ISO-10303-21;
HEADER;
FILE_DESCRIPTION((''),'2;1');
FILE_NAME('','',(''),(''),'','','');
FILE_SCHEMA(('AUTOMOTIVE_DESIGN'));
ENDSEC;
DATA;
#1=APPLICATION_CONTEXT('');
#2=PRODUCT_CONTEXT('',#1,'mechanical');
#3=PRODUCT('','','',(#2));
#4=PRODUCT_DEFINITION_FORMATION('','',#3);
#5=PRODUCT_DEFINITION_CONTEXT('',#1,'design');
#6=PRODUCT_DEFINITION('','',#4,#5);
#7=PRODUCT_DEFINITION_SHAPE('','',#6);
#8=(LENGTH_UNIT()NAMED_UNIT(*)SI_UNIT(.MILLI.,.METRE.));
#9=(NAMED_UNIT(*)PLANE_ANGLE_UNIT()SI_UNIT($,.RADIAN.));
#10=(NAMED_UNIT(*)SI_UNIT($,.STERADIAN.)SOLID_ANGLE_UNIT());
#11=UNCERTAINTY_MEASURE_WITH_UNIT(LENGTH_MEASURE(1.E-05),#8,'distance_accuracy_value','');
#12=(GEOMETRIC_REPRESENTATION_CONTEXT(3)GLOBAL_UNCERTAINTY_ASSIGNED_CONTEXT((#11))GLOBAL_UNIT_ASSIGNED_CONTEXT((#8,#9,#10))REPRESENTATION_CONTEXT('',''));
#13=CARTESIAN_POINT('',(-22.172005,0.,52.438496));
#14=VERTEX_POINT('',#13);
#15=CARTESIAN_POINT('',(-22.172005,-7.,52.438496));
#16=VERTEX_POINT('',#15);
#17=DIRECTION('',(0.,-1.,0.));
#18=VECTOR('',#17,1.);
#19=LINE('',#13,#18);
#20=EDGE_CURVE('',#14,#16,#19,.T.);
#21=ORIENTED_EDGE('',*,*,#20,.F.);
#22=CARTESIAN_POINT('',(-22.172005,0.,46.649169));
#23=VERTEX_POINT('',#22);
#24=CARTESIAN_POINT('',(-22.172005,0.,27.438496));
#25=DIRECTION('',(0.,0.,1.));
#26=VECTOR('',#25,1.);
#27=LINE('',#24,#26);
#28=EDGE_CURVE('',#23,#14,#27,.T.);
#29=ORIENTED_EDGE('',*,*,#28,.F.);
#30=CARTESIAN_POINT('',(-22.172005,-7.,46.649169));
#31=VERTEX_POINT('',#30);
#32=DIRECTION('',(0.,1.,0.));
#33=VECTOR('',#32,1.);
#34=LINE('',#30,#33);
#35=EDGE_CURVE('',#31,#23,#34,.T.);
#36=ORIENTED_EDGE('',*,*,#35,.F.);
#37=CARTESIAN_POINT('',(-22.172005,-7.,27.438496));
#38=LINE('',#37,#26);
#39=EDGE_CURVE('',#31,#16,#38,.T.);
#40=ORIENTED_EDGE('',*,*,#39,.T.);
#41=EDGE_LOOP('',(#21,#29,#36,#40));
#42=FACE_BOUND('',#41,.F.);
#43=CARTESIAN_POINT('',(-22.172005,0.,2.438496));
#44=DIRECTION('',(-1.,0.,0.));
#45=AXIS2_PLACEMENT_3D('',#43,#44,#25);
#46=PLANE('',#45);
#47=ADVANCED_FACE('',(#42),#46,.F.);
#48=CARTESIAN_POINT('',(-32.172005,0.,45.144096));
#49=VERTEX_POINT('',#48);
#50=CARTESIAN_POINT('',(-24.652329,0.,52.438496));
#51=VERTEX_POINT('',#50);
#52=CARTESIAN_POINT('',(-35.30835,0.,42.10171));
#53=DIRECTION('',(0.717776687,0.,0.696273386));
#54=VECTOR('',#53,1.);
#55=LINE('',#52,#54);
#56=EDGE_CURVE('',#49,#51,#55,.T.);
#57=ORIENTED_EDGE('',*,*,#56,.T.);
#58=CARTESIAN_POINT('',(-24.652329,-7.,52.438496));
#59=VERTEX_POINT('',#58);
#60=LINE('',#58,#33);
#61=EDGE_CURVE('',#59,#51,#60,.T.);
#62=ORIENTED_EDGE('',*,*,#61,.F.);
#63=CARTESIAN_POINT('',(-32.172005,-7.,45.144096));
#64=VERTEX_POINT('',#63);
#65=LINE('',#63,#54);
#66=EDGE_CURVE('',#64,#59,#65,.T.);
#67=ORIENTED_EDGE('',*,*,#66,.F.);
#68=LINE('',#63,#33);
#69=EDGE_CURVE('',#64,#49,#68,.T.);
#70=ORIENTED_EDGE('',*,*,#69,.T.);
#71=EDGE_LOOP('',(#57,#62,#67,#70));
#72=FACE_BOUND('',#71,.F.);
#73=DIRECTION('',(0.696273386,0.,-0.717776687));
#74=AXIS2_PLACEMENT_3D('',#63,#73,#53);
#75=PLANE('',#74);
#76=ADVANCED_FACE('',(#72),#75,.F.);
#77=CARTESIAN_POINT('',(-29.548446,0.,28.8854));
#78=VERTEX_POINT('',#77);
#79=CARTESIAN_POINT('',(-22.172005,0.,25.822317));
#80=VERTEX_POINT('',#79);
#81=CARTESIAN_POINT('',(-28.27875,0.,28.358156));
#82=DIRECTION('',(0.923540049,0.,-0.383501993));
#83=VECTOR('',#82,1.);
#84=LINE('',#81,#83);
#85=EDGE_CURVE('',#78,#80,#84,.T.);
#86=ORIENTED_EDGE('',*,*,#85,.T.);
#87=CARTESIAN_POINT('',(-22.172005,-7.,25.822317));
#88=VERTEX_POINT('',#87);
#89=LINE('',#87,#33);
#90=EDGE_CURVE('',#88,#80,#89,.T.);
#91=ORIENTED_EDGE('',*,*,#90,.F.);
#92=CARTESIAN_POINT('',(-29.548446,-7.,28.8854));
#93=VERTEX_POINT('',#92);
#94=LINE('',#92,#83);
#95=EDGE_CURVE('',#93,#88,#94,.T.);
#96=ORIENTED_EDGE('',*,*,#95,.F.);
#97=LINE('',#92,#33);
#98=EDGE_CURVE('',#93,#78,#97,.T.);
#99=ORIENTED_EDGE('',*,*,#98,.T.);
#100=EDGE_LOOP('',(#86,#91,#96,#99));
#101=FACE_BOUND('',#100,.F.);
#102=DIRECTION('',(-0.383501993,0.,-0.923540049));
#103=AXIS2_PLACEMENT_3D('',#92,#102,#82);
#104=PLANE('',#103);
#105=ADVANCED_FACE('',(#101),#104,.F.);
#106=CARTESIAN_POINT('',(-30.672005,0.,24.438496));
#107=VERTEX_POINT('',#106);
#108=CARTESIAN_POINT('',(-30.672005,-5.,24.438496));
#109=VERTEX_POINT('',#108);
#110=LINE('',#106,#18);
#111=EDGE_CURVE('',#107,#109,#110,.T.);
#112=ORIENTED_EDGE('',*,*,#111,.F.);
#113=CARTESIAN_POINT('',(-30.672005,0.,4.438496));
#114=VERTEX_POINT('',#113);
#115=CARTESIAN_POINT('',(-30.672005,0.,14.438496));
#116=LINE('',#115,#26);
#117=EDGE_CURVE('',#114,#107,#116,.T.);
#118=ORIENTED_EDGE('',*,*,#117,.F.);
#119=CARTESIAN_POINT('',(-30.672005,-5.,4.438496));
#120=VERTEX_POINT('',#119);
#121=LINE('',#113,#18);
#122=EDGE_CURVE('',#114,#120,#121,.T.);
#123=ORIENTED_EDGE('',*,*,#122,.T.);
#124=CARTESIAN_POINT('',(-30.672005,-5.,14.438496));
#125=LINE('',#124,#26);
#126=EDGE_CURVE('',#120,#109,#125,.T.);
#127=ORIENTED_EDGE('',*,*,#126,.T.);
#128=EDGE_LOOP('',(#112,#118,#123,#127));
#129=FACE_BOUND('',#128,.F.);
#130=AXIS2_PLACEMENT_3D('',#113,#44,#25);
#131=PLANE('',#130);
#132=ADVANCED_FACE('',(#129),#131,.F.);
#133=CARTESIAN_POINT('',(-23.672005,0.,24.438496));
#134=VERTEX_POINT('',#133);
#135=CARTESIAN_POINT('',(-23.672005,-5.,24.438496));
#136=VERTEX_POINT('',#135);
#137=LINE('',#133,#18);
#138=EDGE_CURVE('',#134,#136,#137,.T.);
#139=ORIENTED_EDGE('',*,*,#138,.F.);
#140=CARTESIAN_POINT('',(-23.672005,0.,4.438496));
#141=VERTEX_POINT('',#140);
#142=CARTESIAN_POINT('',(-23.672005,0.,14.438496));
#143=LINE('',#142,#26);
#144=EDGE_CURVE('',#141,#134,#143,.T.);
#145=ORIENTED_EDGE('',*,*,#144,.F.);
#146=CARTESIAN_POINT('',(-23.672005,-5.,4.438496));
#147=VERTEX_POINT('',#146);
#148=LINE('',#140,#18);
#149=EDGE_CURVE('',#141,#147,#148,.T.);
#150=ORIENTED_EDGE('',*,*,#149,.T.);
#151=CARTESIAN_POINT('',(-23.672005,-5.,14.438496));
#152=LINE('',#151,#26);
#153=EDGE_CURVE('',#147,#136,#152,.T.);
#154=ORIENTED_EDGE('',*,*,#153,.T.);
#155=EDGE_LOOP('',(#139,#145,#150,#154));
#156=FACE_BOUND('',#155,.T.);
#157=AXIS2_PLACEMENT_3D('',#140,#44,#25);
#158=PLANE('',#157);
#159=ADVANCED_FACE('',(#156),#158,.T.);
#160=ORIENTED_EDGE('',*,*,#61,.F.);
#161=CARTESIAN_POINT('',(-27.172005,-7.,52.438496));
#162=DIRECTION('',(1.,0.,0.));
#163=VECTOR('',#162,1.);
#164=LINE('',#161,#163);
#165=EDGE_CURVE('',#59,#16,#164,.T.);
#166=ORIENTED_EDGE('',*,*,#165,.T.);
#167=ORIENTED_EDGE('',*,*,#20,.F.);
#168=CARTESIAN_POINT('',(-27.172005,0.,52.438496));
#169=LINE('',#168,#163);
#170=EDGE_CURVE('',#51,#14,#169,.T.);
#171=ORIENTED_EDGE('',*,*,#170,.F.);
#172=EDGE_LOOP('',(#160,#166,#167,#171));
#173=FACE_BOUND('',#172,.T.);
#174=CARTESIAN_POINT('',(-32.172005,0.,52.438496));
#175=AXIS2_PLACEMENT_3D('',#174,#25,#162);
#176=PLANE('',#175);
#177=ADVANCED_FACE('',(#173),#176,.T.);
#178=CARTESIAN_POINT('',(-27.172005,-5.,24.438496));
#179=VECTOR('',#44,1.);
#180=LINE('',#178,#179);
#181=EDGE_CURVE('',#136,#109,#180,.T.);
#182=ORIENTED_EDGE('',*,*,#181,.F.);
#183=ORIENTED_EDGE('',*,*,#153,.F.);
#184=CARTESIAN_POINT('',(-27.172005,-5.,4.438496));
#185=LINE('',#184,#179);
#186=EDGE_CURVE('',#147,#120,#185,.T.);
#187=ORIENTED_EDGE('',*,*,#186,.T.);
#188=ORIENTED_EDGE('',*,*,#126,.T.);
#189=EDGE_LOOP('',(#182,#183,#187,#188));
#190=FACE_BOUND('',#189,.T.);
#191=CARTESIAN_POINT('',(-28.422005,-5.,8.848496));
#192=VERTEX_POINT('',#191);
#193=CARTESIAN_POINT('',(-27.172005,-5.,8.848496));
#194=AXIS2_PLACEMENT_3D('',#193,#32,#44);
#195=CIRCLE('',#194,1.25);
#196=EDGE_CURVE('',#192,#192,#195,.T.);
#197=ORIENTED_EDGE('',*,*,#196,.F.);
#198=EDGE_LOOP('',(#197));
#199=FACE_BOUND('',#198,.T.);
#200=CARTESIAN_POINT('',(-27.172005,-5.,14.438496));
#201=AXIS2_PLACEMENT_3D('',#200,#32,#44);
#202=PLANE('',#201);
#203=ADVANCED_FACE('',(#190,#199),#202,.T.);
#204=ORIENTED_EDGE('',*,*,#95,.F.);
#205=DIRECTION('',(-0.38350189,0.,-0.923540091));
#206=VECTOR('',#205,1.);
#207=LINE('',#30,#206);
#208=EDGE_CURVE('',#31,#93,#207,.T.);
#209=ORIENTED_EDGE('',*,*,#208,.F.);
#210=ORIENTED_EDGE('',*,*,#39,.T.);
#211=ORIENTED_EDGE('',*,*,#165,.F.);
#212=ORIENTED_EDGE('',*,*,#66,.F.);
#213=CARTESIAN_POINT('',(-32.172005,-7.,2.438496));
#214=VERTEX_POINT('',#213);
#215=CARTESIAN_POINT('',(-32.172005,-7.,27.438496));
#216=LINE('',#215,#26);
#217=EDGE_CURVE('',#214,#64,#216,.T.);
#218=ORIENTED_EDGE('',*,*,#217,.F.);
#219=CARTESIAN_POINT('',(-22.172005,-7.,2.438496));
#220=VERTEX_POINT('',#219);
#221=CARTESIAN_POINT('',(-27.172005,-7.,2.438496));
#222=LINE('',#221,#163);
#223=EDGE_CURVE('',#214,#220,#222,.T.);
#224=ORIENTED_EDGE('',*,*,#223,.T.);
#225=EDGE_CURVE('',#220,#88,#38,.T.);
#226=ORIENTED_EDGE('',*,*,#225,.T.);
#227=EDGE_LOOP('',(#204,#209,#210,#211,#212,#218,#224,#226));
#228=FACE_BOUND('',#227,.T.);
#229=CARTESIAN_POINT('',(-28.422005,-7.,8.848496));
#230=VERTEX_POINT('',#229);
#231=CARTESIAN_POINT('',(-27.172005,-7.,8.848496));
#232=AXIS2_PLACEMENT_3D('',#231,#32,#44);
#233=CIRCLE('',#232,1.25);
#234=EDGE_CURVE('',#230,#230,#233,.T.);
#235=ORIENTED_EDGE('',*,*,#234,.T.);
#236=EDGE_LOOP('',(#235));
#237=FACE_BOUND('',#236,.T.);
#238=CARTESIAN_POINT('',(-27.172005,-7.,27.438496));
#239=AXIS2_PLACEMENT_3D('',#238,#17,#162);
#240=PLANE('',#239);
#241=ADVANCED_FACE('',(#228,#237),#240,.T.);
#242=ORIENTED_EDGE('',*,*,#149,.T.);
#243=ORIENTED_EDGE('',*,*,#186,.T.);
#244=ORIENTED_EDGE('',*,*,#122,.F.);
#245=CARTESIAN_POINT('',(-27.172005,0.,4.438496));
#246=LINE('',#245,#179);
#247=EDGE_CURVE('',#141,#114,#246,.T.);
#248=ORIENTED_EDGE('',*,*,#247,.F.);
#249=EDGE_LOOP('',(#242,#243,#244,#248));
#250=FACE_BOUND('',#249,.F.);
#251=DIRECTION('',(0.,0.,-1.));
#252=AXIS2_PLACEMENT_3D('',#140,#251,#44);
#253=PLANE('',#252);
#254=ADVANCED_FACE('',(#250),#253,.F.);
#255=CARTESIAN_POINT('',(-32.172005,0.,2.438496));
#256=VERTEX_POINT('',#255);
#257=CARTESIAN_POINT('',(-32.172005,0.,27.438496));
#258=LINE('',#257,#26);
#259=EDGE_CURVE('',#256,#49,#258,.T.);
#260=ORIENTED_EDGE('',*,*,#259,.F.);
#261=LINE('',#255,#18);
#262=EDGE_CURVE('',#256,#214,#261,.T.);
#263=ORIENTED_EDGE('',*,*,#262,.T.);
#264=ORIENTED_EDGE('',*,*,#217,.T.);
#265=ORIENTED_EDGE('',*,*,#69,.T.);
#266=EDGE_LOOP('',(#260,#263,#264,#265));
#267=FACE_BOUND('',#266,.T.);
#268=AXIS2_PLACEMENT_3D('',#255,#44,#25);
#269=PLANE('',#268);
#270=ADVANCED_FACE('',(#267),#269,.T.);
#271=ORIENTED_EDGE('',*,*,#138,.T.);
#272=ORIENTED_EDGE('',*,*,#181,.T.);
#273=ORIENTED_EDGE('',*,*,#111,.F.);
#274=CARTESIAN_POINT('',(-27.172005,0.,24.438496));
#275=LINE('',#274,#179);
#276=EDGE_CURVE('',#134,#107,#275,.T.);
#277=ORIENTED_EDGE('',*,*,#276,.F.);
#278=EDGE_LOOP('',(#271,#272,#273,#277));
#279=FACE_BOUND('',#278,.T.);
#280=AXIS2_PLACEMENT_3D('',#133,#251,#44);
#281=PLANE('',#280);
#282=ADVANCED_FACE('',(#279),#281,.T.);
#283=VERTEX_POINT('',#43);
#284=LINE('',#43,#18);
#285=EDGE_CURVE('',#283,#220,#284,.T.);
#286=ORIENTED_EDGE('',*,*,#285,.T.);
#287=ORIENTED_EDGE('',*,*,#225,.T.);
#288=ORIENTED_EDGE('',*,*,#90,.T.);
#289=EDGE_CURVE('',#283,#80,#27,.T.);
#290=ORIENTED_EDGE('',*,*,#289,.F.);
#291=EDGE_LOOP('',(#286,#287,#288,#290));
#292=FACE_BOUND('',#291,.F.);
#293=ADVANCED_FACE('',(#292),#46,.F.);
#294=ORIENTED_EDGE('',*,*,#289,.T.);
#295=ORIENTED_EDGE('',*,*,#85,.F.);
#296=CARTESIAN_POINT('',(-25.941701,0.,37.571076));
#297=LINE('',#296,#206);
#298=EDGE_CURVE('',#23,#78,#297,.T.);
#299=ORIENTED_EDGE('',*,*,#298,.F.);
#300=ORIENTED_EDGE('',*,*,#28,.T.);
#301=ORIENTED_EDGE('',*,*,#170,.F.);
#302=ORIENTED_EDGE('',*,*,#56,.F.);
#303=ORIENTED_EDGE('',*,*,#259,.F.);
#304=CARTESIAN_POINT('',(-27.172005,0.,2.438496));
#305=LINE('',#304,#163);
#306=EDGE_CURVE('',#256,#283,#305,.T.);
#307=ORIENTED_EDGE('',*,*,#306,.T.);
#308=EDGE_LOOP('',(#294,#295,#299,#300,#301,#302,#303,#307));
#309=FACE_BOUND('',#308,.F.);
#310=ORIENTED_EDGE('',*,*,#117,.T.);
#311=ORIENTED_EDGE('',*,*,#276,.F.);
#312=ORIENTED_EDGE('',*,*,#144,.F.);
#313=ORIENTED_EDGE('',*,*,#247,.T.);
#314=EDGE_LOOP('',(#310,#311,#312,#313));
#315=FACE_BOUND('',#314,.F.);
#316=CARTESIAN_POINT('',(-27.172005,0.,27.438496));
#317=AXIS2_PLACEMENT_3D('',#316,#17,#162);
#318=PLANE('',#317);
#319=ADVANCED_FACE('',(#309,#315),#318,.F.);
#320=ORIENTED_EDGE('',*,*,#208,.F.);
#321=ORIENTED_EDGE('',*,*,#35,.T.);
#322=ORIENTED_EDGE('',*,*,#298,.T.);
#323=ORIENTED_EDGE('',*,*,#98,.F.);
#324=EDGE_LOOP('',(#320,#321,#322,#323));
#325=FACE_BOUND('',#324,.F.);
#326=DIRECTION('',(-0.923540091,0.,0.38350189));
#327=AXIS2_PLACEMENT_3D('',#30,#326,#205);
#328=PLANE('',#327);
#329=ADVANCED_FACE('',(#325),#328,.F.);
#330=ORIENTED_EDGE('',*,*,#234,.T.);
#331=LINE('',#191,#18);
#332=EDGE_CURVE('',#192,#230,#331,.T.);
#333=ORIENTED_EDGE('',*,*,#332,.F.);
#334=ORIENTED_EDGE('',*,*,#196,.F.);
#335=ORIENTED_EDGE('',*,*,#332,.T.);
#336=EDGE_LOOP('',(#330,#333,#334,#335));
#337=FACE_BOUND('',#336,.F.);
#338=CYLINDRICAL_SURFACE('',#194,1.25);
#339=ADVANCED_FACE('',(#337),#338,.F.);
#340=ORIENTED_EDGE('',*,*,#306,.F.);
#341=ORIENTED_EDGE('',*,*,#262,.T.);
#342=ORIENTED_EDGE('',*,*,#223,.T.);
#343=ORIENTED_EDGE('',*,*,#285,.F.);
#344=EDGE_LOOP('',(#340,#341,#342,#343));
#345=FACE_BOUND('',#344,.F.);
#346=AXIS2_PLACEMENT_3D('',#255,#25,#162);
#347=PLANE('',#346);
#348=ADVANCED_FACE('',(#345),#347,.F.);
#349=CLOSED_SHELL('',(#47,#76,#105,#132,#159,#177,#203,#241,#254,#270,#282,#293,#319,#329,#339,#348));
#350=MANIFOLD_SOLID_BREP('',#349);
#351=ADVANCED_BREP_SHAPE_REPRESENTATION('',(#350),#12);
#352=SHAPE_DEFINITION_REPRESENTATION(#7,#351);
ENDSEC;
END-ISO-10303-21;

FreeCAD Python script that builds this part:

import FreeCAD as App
import Part
import Sketcher
from FreeCAD import Vector


def add_polygon(sketch, points):
    """Adds a closed chain of lines whose ends are joined by coincident constraints."""
    first, n = sketch.GeometryCount, len(points)
    for a, b in zip(points, points[1:] + points[:1]):
        sketch.addGeometry(Part.LineSegment(App.Vector(*a, 0), App.Vector(*b, 0)), False)
    for i in range(n):
        sketch.addConstraint(Sketcher.Constraint("Coincident", first + i, 2, first + (i + 1) % n, 1))

doc = App.newDocument("Part")
body = doc.addObject("PartDesign::Body", "Body")

sketch1 = body.newObject("Sketcher::SketchObject", "Sketch")
sketch1.AttachmentSupport = (doc.getObject("XZ_Plane"), [""])
sketch1.MapMode = "FlatFace"
add_polygon(sketch1, [(-32, 52), (-32, 2), (-22, 2), (-22, 52)])
sketch1.addConstraint(Sketcher.Constraint("Vertical", 0))
sketch1.addConstraint(Sketcher.Constraint("Horizontal", 1))
sketch1.addConstraint(Sketcher.Constraint("Vertical", 2))
sketch1.addConstraint(Sketcher.Constraint("Horizontal", 3))
sketch1.addConstraint(Sketcher.Constraint("DistanceX", 1, 1, 1, 2, 10.0))
sketch1.addConstraint(Sketcher.Constraint("DistanceY", 0, 2, 0, 1, 50.0))
sketch1.addConstraint(Sketcher.Constraint("DistanceX", 0, 2, -1, 1, 32.172005))
sketch1.addConstraint(Sketcher.Constraint("DistanceY", -1, 1, 0, 2, 2.438496))
pad1 = body.newObject("PartDesign::Pad", "Pad")
pad1.Profile = sketch1
pad1.Length = 7

sketch2 = body.newObject("Sketcher::SketchObject", "Sketch001")
sketch2.AttachmentSupport = (doc.getObject("XZ_Plane"), [""])
sketch2.MapMode = "FlatFace"
add_polygon(sketch2, [(-24, 24), (-24, 4), (-31, 4), (-31, 24)])
sketch2.addConstraint(Sketcher.Constraint("Vertical", 0))
sketch2.addConstraint(Sketcher.Constraint("Horizontal", 1))
sketch2.addConstraint(Sketcher.Constraint("Vertical", 2))
sketch2.addConstraint(Sketcher.Constraint("Horizontal", 3))
sketch2.addConstraint(Sketcher.Constraint("DistanceX", 1, 2, 1, 1, 7.0))
sketch2.addConstraint(Sketcher.Constraint("DistanceY", 0, 2, 0, 1, 20.0))
sketch2.addConstraint(Sketcher.Constraint("DistanceX", 0, 2, -1, 1, 23.672005))
sketch2.addConstraint(Sketcher.Constraint("DistanceY", -1, 1, 0, 2, 4.438496))
pocket1 = body.newObject("PartDesign::Pocket", "Pocket")
pocket1.Profile = sketch2
pocket1.Length = 5
pocket1.Reversed = True

sketch3 = body.newObject("Sketcher::SketchObject", "Sketch002")
sketch3.AttachmentSupport = (doc.getObject("XZ_Plane"), [""])
sketch3.MapMode = "FlatFace"
sketch3.AttachmentOffset = App.Placement(Vector(0, 0, 5), App.Rotation())
sketch3.addGeometry(Part.Circle(Vector(-27.2, 8.8, 0), Vector(0, 0, 1), 1.2), False)
sketch3.addConstraint(Sketcher.Constraint("Diameter", 0, 2.5))
sketch3.addConstraint(Sketcher.Constraint("DistanceX", 0, 3, -1, 1, 27.172005))
sketch3.addConstraint(Sketcher.Constraint("DistanceY", -1, 1, 0, 3, 8.848496))
pocket2 = body.newObject("PartDesign::Pocket", "Pocket001")
pocket2.Profile = sketch3
pocket2.Type = "ThroughAll"
pocket2.Reversed = True

sketch4 = body.newObject("Sketcher::SketchObject", "Sketch003")
sketch4.AttachmentSupport = (doc.getObject("XZ_Plane"), [""])
sketch4.MapMode = "FlatFace"
sketch4.AttachmentOffset = App.Placement(Vector(0, 0, 7), App.Rotation())
add_polygon(sketch4, [(-32, 52), (-32, 45), (-25, 52)])
add_polygon(sketch4, [(-30, 29), (-22, 26), (-22, 47)])
sketch4.addConstraint(Sketcher.Constraint("Vertical", 0))
sketch4.addConstraint(Sketcher.Constraint("Horizontal", 2))
sketch4.addConstraint(Sketcher.Constraint("Vertical", 4))
sketch4.addConstraint(Sketcher.Constraint("Perpendicular", 3, 5))
sketch4.addConstraint(Sketcher.Constraint("DistanceX", 0, 2, 3, 2, 10.0))
sketch4.addConstraint(Sketcher.Constraint("DistanceY", 0, 2, 0, 1, 7.2944))
sketch4.addConstraint(Sketcher.Constraint("DistanceY", 4, 1, 4, 2, 20.826852))
sketch4.addConstraint(Sketcher.Constraint("DistanceY", -1, 1, 5, 2, 28.8854))
sketch4.addConstraint(Sketcher.Constraint("Distance", 5, 19.234432))
sketch4.addConstraint(Sketcher.Constraint("DistanceX", 2, 2, 2, 1, 7.519676))
sketch4.addConstraint(Sketcher.Constraint("DistanceX", 1, 2, -1, 1, 24.652329))
sketch4.addConstraint(Sketcher.Constraint("DistanceY", 3, 2, 0, 2, 19.321779))
pocket3 = body.newObject("PartDesign::Pocket", "Pocket002")
pocket3.Profile = sketch4
pocket3.Type = "ThroughAll"

doc.recompute()
